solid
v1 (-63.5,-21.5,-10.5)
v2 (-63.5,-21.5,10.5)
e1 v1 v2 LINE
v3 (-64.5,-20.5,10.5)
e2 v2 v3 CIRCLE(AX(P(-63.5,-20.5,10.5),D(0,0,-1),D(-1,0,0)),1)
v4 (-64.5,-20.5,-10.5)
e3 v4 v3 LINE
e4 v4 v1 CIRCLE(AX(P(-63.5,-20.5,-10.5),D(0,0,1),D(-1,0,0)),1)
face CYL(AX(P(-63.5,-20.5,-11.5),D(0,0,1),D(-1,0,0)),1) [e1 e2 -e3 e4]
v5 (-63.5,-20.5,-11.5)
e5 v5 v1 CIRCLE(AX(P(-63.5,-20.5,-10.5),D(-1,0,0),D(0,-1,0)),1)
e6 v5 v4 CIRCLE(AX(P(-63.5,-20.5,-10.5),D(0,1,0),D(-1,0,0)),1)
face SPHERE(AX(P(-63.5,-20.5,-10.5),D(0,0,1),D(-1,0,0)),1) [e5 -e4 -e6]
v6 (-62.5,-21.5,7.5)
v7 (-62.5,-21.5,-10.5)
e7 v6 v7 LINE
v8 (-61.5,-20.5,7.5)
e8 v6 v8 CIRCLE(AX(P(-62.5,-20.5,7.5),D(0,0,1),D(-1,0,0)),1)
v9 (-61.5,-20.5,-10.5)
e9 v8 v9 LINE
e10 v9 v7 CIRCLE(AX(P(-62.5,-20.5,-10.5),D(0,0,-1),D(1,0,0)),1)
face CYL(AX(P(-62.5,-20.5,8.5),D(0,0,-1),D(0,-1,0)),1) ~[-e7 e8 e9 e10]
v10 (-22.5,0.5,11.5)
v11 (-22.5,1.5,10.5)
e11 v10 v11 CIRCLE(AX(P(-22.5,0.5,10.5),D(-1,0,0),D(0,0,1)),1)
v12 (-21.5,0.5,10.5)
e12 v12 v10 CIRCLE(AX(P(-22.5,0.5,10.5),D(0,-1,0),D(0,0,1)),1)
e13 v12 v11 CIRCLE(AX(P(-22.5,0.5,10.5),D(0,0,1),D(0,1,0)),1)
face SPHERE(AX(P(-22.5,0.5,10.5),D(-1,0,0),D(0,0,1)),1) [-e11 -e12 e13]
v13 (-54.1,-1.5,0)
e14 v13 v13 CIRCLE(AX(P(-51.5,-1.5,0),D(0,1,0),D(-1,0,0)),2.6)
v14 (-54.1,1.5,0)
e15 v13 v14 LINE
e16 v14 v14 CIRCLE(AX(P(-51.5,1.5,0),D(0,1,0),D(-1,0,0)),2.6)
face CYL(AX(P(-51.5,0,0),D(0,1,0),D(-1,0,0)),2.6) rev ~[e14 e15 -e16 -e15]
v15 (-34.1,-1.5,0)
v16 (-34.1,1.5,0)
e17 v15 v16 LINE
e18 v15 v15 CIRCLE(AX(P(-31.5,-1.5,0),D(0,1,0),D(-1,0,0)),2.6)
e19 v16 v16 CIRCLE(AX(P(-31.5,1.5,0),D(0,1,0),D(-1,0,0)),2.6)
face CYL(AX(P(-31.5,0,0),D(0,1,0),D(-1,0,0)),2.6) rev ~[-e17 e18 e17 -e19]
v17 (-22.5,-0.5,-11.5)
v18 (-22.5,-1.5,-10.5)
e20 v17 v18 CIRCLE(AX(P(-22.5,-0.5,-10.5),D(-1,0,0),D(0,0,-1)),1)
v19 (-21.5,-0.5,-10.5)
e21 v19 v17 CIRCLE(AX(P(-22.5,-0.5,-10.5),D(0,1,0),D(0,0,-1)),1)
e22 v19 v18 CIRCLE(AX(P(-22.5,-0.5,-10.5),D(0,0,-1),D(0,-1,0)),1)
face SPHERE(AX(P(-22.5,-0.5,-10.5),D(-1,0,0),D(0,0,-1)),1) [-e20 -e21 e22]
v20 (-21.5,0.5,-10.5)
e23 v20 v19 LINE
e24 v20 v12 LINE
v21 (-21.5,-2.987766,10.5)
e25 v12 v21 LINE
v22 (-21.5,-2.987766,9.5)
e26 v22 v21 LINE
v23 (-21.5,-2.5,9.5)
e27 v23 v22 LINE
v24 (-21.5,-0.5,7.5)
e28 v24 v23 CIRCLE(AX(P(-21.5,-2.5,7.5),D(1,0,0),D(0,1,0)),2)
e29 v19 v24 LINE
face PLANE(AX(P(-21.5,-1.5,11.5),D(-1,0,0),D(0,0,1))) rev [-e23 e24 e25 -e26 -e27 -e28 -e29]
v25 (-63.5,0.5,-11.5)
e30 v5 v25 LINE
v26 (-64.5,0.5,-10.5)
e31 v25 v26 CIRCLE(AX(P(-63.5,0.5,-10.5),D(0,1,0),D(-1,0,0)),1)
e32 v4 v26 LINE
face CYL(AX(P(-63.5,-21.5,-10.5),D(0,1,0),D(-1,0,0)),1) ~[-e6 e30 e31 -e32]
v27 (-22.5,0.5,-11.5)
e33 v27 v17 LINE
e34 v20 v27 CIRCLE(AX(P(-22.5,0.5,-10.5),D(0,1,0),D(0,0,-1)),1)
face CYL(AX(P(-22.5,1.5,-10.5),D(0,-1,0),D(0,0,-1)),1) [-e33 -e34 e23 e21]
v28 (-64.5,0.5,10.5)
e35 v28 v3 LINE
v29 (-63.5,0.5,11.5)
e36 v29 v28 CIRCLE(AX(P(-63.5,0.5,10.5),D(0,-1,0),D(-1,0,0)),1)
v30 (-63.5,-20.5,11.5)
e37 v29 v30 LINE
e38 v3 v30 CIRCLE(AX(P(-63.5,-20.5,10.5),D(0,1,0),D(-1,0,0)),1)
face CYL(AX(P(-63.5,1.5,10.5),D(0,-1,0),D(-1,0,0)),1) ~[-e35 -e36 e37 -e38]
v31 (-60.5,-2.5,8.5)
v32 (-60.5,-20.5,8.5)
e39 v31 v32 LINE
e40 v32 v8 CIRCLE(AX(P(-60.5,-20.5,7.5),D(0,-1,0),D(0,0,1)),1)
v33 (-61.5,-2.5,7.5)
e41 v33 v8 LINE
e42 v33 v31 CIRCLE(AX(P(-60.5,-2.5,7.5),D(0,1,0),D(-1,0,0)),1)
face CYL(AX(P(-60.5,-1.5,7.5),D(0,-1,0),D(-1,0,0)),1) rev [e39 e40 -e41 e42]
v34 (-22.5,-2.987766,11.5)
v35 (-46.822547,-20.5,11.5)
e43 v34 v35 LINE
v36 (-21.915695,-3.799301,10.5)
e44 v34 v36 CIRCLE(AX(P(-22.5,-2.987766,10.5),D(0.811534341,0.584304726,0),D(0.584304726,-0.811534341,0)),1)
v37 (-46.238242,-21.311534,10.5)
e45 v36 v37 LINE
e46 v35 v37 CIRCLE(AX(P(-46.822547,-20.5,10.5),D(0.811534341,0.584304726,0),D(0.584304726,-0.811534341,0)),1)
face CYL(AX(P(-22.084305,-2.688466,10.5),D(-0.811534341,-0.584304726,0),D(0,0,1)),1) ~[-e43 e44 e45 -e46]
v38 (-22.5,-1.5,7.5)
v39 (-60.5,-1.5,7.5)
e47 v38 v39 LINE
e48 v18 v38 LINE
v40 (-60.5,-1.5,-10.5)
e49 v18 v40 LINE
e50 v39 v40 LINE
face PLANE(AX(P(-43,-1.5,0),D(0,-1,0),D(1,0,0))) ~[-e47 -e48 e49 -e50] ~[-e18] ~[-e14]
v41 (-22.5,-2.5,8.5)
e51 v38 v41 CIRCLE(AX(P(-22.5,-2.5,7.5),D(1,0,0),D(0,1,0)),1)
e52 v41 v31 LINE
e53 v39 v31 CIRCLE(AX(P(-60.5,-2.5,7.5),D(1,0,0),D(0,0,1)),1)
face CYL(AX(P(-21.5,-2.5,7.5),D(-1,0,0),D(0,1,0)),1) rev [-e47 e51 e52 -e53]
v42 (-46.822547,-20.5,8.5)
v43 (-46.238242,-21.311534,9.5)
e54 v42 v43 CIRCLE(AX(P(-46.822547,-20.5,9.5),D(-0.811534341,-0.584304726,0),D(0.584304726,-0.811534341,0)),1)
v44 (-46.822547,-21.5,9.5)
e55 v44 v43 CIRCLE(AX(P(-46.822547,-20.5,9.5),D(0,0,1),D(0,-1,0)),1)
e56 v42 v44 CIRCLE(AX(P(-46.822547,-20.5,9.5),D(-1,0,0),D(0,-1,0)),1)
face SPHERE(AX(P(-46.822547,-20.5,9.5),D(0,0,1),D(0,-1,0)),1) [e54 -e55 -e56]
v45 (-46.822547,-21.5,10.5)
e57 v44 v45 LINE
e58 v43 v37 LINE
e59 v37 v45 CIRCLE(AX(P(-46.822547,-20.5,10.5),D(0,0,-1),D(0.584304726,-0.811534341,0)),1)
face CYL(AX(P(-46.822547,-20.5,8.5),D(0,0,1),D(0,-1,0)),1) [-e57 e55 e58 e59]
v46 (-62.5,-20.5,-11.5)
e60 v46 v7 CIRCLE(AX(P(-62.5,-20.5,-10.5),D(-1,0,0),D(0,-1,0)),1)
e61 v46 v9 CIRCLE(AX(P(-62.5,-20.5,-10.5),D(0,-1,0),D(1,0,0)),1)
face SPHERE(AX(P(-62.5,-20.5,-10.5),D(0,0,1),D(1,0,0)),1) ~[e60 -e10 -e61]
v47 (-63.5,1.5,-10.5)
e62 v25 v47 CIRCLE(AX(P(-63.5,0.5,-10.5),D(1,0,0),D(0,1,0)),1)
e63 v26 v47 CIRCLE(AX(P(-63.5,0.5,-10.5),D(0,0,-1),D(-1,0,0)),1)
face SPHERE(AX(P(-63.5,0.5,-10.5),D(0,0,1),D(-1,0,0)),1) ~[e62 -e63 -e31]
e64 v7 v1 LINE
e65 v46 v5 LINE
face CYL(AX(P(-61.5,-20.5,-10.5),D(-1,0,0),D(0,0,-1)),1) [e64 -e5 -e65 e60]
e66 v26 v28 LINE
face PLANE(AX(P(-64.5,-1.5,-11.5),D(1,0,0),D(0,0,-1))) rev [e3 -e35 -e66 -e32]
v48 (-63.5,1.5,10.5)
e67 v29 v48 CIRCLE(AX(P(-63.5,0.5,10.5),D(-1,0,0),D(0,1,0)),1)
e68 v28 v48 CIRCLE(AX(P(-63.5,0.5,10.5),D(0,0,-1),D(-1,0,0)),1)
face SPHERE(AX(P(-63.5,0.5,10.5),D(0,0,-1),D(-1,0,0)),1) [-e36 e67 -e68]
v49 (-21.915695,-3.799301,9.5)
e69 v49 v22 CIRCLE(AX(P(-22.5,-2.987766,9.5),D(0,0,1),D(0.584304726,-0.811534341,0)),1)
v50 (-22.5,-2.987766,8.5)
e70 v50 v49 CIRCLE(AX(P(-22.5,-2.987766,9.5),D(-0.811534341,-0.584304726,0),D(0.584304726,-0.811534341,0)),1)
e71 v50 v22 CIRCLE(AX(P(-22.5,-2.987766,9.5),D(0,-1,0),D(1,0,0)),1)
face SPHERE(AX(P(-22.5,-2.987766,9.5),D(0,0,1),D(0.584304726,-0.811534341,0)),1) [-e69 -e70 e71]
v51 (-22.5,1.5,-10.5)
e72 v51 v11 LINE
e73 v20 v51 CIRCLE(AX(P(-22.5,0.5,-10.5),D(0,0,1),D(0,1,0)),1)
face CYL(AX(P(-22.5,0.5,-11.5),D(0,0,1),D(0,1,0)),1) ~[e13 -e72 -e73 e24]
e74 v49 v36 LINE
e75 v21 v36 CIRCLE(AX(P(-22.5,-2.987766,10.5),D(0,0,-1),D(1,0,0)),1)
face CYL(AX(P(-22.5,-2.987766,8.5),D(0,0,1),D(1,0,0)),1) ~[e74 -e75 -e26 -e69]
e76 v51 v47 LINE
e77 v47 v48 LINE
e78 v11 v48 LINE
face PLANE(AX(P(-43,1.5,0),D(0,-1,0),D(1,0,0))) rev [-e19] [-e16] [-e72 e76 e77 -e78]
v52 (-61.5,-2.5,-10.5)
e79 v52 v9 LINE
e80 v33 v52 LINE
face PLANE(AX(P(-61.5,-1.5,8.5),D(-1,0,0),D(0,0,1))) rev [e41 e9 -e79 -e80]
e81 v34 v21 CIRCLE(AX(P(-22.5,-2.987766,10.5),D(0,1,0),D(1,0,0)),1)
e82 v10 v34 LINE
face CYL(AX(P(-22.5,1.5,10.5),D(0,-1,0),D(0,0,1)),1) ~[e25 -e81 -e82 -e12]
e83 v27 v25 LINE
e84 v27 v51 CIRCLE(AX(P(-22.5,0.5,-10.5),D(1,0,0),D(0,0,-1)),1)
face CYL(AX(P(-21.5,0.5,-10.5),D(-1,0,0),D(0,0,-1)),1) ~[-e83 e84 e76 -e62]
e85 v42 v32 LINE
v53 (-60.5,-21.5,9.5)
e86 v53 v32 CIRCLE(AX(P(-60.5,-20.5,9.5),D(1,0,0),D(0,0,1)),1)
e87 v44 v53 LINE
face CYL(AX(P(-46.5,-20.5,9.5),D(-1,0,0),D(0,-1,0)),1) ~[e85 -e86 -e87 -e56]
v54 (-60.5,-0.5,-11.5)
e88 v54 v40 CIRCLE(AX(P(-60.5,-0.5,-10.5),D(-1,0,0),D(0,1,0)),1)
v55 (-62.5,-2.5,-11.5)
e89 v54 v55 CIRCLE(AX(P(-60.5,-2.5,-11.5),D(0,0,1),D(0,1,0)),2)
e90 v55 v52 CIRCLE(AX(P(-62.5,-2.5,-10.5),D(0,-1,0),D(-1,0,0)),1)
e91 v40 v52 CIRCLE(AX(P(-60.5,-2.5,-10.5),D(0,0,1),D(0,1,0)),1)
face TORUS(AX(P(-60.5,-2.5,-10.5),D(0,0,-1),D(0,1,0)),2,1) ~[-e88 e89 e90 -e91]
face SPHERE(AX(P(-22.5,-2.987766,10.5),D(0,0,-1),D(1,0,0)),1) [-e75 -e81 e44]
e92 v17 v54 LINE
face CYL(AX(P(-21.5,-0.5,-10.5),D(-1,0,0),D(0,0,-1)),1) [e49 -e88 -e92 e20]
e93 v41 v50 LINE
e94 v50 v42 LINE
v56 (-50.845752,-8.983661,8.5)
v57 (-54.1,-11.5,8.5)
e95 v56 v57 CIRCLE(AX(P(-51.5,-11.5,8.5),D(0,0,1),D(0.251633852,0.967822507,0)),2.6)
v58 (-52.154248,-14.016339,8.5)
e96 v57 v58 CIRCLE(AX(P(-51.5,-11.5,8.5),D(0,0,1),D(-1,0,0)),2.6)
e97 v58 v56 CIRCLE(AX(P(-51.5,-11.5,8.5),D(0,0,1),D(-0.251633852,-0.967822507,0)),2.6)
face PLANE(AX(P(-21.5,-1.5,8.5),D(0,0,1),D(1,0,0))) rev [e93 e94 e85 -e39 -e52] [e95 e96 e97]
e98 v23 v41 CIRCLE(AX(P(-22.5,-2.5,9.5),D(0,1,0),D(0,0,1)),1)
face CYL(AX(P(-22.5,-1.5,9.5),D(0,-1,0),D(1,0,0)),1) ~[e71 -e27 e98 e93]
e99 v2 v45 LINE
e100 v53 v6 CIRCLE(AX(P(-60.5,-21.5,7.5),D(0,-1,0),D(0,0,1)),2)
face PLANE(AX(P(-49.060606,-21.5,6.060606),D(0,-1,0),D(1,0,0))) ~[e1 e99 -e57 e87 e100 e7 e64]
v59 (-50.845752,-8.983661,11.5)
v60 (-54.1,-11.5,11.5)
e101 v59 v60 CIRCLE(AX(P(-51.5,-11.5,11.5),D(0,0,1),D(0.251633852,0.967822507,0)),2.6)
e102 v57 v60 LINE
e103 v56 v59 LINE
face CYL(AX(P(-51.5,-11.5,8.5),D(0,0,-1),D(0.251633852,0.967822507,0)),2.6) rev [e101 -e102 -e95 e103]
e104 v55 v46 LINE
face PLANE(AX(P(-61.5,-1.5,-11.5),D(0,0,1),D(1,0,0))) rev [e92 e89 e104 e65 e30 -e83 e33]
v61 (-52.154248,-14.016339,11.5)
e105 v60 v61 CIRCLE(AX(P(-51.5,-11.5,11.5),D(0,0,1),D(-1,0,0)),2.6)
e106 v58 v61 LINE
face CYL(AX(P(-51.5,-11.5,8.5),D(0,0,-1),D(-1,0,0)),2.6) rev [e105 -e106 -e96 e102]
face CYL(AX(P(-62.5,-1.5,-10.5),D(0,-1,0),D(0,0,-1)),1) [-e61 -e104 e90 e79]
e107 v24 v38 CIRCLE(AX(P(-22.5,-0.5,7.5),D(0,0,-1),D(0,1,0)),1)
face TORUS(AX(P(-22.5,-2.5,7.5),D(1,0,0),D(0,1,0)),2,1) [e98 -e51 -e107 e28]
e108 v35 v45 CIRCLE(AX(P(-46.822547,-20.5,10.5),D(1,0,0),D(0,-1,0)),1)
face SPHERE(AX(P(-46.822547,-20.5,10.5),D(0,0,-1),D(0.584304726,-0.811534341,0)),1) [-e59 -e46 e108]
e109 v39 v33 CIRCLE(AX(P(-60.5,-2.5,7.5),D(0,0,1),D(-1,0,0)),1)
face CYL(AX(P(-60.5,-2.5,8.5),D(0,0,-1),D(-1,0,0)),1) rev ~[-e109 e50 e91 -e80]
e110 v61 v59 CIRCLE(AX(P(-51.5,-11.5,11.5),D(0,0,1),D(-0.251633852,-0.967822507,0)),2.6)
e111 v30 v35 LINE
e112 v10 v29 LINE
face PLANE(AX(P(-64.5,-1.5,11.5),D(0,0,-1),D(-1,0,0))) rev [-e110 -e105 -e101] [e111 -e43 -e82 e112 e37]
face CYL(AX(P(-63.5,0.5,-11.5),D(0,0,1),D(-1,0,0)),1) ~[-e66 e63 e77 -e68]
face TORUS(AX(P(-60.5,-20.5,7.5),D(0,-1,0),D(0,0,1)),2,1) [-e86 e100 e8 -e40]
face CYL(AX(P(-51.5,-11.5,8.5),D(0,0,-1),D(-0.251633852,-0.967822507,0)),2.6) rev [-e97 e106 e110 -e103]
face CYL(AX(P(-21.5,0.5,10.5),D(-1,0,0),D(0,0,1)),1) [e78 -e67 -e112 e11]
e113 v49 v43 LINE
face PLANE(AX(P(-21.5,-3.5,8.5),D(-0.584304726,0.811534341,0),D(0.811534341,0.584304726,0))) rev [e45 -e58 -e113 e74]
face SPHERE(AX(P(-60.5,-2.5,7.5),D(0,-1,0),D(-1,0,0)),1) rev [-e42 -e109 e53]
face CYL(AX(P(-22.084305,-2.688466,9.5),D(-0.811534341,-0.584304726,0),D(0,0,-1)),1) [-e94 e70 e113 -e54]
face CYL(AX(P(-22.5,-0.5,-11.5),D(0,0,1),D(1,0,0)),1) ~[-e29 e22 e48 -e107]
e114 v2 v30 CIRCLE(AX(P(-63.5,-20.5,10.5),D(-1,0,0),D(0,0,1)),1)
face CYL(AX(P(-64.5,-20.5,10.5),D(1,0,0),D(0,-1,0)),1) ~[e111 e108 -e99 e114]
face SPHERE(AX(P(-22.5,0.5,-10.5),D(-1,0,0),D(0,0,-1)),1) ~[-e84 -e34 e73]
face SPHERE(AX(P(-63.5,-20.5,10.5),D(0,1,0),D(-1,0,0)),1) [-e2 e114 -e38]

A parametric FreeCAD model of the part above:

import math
import FreeCAD as App
import Part
import Sketcher
Q = App.Units.Quantity


def edges_at(feature, points):
    """Names of the edges that pass closest to the given points."""
    edges = feature.Shape.Edges
    near = lambda p: min(range(len(edges)), key=lambda i: edges[i].distToShape(Part.Vertex(*p))[0])
    return sorted({f"Edge{near(p) + 1}" for p in points})


def add_polygon(sketch, points):
    """Adds a closed chain of lines whose ends are joined by coincident constraints."""
    first, n = sketch.GeometryCount, len(points)
    for a, b in zip(points, points[1:] + points[:1]):
        sketch.addGeometry(Part.LineSegment(App.Vector(*a, 0), App.Vector(*b, 0)), False)
    for i in range(n):
        sketch.addConstraint(Sketcher.Constraint("Coincident", first + i, 2, first + (i + 1) % n, 1))

doc = App.newDocument("Part")
body = doc.addObject("PartDesign::Body", "Body")

# Sketch on XZ plane
sketch1 = body.newObject("Sketcher::SketchObject", "Sketch")
sketch1.AttachmentSupport = (doc.getObject("XZ_Plane"), [""])
sketch1.MapMode = "FlatFace"
add_polygon(sketch1, [(-21.5, 11.5), (-21.5, -11.5), (21.5, -11.5), (21.5, 11.5)])  # lines 0-3
sketch1.addGeometry(Part.Circle(App.Vector(-11.5, 0, 0), App.Vector(0, 0, 1), 2.6), False)  # 4
sketch1.addGeometry(Part.Circle(App.Vector(8.5, 0, 0), App.Vector(0, 0, 1), 2.6), False)  # 5
sketch1.addConstraint([
    Sketcher.Constraint("Vertical", 0),
    Sketcher.Constraint("Horizontal", 1),
    Sketcher.Constraint("Vertical", 2),
    Sketcher.Constraint("Horizontal", 3),
    Sketcher.Constraint("Equal", 4, 5),
    Sketcher.Constraint("Symmetric", 0, 2, 2, 2, -1, 1),
    Sketcher.Constraint("PointOnObject", 4, 3, -1),
    Sketcher.Constraint("PointOnObject", 5, 3, -1),
    Sketcher.Constraint("Diameter", 4, Q("5.2 mm")),
    Sketcher.Constraint("DistanceX", 1, 1, 1, 2, Q("43 mm")),
    Sketcher.Constraint("DistanceY", 0, 2, 0, 1, Q("23 mm")),
    Sketcher.Constraint("DistanceX", 4, 3, 5, 3, Q("20 mm")),
    Sketcher.Constraint("DistanceX", 0, 2, 4, 3, Q("10 mm")),
])
pad1 = body.newObject("PartDesign::Pad", "Pad")
pad1.Profile = sketch1
pad1.Length = 3
pad1.Midplane = True

# Sketch on XZ plane
sketch2 = body.newObject("Sketcher::SketchObject", "Sketch001")
sketch2.AttachmentSupport = (doc.getObject("XZ_Plane"), [""])
sketch2.MapMode = "FlatFace"
sketch2.AttachmentOffset = App.Placement(App.Vector(0, 0, 1.5), App.Rotation())
add_polygon(sketch2, [(21.5, -11.5), (21.5, 11.5), (-21.5, 11.5), (-21.5, 8.5), (18.5, 8.5), (18.5, -11.5)])  # lines 0-5
sketch2.addConstraint([
    Sketcher.Constraint("Vertical", 0),
    Sketcher.Constraint("Horizontal", 1),
    Sketcher.Constraint("Vertical", 2),
    Sketcher.Constraint("Horizontal", 3),
    Sketcher.Constraint("Vertical", 4),
    Sketcher.Constraint("Horizontal", 5),
    Sketcher.Constraint("Symmetric", 1, 2, 5, 2, -1, 1),
    Sketcher.Constraint("Equal", 5, 2),
    Sketcher.Constraint("DistanceX", 1, 2, 1, 1, Q("43 mm")),
    Sketcher.Constraint("DistanceX", 3, 1, 3, 2, Q("40 mm")),
    Sketcher.Constraint("DistanceY", 0, 1, 0, 2, Q("23 mm")),
])
pad2 = body.newObject("PartDesign::Pad", "Pad001")
pad2.Profile = sketch2
pad2.Length = 20

# Sketch on XY plane
sketch3 = body.newObject("Sketcher::SketchObject", "Sketch002")
sketch3.AttachmentSupport = (doc.getObject("XY_Plane"), [""])
sketch3.MapMode = "FlatFace"
sketch3.AttachmentOffset = App.Placement(App.Vector(0, 0, 8.5), App.Rotation())
sketch3.addGeometry([
    Part.ArcOfCircle(Part.Circle(App.Vector(8.5, -11.5, 0), App.Vector(0, 0, 1), 2.6), math.radians(105), math.radians(285)),
    Part.ArcOfCircle(Part.Circle(App.Vector(8.5, -11.5, 0), App.Vector(0, 0, 1), 2.6), math.radians(0), math.radians(105)),
    Part.ArcOfCircle(Part.Circle(App.Vector(8.5, -11.5, 0), App.Vector(0, 0, 1), 2.6), math.radians(-75), math.radians(0)),
], False)
sketch3.addConstraint([
    Sketcher.Constraint("Tangent", 0, 1, 1, 2),
    Sketcher.Constraint("Tangent", 1, 1, 2, 2),
    Sketcher.Constraint("Tangent", 2, 1, 0, 2),
    Sketcher.Constraint("Horizontal", 2, 3, 1, 1),
    Sketcher.Constraint("Radius", 0, Q("2.6 mm")),
    Sketcher.Constraint("DistanceX", -1, 1, 0, 3, Q("8.5 mm")),
    Sketcher.Constraint("DistanceY", 0, 3, -1, 1, Q("11.5 mm")),
    Sketcher.Constraint("DistanceX", -1, 1, 0, 1, Q("7.845752 mm")),
    Sketcher.Constraint("DistanceX", -1, 1, 2, 1, Q("9.154248 mm")),
])
pocket1 = body.newObject("PartDesign::Pocket", "Pocket")
pocket1.Profile = sketch3
pocket1.Type = "ThroughAll"
pocket1.Reversed = True

# Sketch on XY plane
sketch4 = body.newObject("Sketcher::SketchObject", "Sketch003")
sketch4.AttachmentSupport = (doc.getObject("XY_Plane"), [""])
sketch4.MapMode = "FlatFace"
sketch4.AttachmentOffset = App.Placement(App.Vector(0, 0, 8.5), App.Rotation())
add_polygon(sketch4, [(-22, -4), (4, -22), (-22, -22)])  # lines 0-2
sketch4.addConstraint([
    Sketcher.Constraint("Horizontal", 1),
    Sketcher.Constraint("Vertical", 2),
    Sketcher.Constraint("DistanceX", 1, 2, 1, 1, Q("25 mm")),
    Sketcher.Constraint("DistanceY", 2, 1, 2, 2, Q("18 mm")),
    Sketcher.Constraint("DistanceX", -1, 1, 0, 2, Q("3.5 mm")),
    Sketcher.Constraint("DistanceY", 0, 2, -1, 1, Q("21.5 mm")),
])
pocket2 = body.newObject("PartDesign::Pocket", "Pocket001")
pocket2.Profile = sketch4
pocket2.Type = "ThroughAll"
pocket2.Reversed = True
doc.recompute()

fillet = body.newObject("PartDesign::Fillet", "Fillet")
fillet.Base = (pocket2, edges_at(pocket2, [
    (21.5, 1.5, 0),
    (21.5, -10, 11.5),
    (21.5, -21.5, 0),
    (21.5, -10, -11.5),
    (0, 1.5, -11.5),
    (0, 1.5, 11.5),
    (-21.5, -1, 11.5),
    (-9, -12.5, 11.5),
    (12.5, -21.5, 11.5),
    (-9, -12.5, 8.5),
    (3.5, -21.5, 10),
    (11, -21.5, 8.5),
    (18.5, -21.5, -1.5),
    (-1.5, -1.5, -11.5),
    (18.5, -11.5, 8.5),
    (18.5, -11.5, -11.5),
    (18.5, -1.5, -1.5),
    (20, -21.5, -11.5),
    (-21.5, 0, -11.5),
    (-21.5, 1.5, 0),
    (-21.5, -1.5, -1.5),
    (-21.5, -2.5, 8.5),
    (-21.5, -3.5, 10),
    (-1.5, -1.5, 8.5),
]))
fillet.Radius = 1
body2 = doc.addObject("PartDesign::Body", "Body001")
doc.recompute()

mirroring = doc.addObject("Part::Mirroring", "Mirroring")
mirroring.Source = body
mirroring.Base = App.Vector(-21.5, -0.211576, 1.341034)
mirroring.Normal = App.Vector(-1, 0, 0)
body2.BaseFeature = mirroring
doc.recompute()
body.Visibility = False
mirroring.Visibility = False

doc.recompute()
